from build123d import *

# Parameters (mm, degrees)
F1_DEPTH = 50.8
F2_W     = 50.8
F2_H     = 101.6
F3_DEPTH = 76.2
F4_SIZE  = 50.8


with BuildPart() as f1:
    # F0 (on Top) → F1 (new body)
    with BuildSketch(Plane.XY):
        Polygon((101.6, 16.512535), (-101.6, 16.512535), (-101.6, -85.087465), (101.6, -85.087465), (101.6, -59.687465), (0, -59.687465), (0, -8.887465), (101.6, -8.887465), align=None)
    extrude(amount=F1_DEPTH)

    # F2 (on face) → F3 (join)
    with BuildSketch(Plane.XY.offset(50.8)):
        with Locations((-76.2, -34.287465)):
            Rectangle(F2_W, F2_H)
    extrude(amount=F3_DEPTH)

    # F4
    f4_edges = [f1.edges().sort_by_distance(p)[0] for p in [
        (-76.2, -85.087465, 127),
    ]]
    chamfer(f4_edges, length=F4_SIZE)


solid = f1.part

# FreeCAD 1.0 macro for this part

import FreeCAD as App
import Part
import Sketcher
Q = App.Units.Quantity


def edges_at(feature, points):
    """Names of the edges that pass closest to the given points."""
    edges = feature.Shape.Edges
    near = lambda p: min(range(len(edges)), key=lambda i: edges[i].distToShape(Part.Vertex(*p))[0])
    return sorted({f"Edge{near(p) + 1}" for p in points})


def add_polygon(sketch, points):
    """Adds a closed chain of lines whose ends are joined by coincident constraints."""
    first, n = sketch.GeometryCount, len(points)
    for a, b in zip(points, points[1:] + points[:1]):
        sketch.addGeometry(Part.LineSegment(App.Vector(*a, 0), App.Vector(*b, 0)), False)
    for i in range(n):
        sketch.addConstraint(Sketcher.Constraint("Coincident", first + i, 2, first + (i + 1) % n, 1))

doc = App.newDocument("Part")
body = doc.addObject("PartDesign::Body", "Body")

# Sketch on XY plane
sketch1 = doc.addObject("Sketcher::SketchObject", "Sketch")
body.addObject(sketch1)
sketch1.AttachmentSupport = (doc.XY_Plane, [""])
sketch1.MapMode = "FlatFace"
add_polygon(sketch1, [(101.6, 16.512535), (-101.6, 16.512535), (-101.6, -85.087465), (101.6, -85.087465), (101.6, -59.687465), (0, -59.687465), (0, -8.887465), (101.6, -8.887465)])  # lines 0-7
sketch1.addConstraint(Sketcher.Constraint("Horizontal", 0))
sketch1.addConstraint(Sketcher.Constraint("Vertical", 1))
sketch1.addConstraint(Sketcher.Constraint("Horizontal", 2))
sketch1.addConstraint(Sketcher.Constraint("Vertical", 3))
sketch1.addConstraint(Sketcher.Constraint("Horizontal", 4))
sketch1.addConstraint(Sketcher.Constraint("Vertical", 5))
sketch1.addConstraint(Sketcher.Constraint("Horizontal", 6))
sketch1.addConstraint(Sketcher.Constraint("Vertical", 7))
sketch1.addConstraint(Sketcher.Constraint("PointOnObject", 4, 2, -2))
sketch1.addConstraint(Sketcher.Constraint("Vertical", 3, 2, 6, 2))
sketch1.addConstraint(Sketcher.Constraint("Equal", 6, 1))
sketch1.addConstraint(Sketcher.Constraint("Equal", 3, 7))
sketch1.addConstraint(Sketcher.Constraint("DistanceX", 0, 2, 0, 1, Q("8 in")))
sketch1.addConstraint(Sketcher.Constraint("DistanceX", 4, 2, 4, 1, Q("4 in")))
sketch1.addConstraint(Sketcher.Constraint("DistanceY", 3, 1, 3, 2, Q("1 in")))
sketch1.addConstraint(Sketcher.Constraint("DistanceY", -1, 1, 0, 2, Q("0.6500998 in")))
pad1 = doc.addObject("PartDesign::Pad", "Pad")
body.addObject(pad1)
pad1.Profile = sketch1
pad1.Length = Q("2 in")

# Sketch on XY plane
sketch2 = doc.addObject("Sketcher::SketchObject", "Sketch001")
body.addObject(sketch2)
sketch2.AttachmentSupport = (doc.XY_Plane, [""])
sketch2.MapMode = "FlatFace"
sketch2.AttachmentOffset = App.Placement(App.Vector(0, 0, 2 * 25.4), App.Rotation())
add_polygon(sketch2, [(-101.6, 16.512535), (-101.6, -85.087465), (-50.8, -85.087465), (-50.8, 16.512535)])  # lines 0-3
sketch2.addConstraint(Sketcher.Constraint("Vertical", 0))
sketch2.addConstraint(Sketcher.Constraint("Horizontal", 1))
sketch2.addConstraint(Sketcher.Constraint("Vertical", 2))
sketch2.addConstraint(Sketcher.Constraint("Horizontal", 3))
sketch2.addConstraint(Sketcher.Constraint("DistanceX", 1, 1, 1, 2, Q("2 in")))
sketch2.addConstraint(Sketcher.Constraint("DistanceY", 0, 2, 0, 1, Q("4 in")))
sketch2.addConstraint(Sketcher.Constraint("DistanceX", 0, 2, -1, 1, Q("4 in")))
sketch2.addConstraint(Sketcher.Constraint("DistanceY", 0, 2, -1, 1, Q("3.3499002 in")))
pad2 = doc.addObject("PartDesign::Pad", "Pad001")
body.addObject(pad2)
pad2.Profile = sketch2
pad2.Length = Q("3 in")
doc.recompute()

chamfer = doc.addObject("PartDesign::Chamfer", "Chamfer")
body.addObject(chamfer)
chamfer.Base = (pad2, edges_at(pad2, [(-76.2, -85.087, 127)]))
chamfer.Size = Q("2 in")

doc.recompute()
